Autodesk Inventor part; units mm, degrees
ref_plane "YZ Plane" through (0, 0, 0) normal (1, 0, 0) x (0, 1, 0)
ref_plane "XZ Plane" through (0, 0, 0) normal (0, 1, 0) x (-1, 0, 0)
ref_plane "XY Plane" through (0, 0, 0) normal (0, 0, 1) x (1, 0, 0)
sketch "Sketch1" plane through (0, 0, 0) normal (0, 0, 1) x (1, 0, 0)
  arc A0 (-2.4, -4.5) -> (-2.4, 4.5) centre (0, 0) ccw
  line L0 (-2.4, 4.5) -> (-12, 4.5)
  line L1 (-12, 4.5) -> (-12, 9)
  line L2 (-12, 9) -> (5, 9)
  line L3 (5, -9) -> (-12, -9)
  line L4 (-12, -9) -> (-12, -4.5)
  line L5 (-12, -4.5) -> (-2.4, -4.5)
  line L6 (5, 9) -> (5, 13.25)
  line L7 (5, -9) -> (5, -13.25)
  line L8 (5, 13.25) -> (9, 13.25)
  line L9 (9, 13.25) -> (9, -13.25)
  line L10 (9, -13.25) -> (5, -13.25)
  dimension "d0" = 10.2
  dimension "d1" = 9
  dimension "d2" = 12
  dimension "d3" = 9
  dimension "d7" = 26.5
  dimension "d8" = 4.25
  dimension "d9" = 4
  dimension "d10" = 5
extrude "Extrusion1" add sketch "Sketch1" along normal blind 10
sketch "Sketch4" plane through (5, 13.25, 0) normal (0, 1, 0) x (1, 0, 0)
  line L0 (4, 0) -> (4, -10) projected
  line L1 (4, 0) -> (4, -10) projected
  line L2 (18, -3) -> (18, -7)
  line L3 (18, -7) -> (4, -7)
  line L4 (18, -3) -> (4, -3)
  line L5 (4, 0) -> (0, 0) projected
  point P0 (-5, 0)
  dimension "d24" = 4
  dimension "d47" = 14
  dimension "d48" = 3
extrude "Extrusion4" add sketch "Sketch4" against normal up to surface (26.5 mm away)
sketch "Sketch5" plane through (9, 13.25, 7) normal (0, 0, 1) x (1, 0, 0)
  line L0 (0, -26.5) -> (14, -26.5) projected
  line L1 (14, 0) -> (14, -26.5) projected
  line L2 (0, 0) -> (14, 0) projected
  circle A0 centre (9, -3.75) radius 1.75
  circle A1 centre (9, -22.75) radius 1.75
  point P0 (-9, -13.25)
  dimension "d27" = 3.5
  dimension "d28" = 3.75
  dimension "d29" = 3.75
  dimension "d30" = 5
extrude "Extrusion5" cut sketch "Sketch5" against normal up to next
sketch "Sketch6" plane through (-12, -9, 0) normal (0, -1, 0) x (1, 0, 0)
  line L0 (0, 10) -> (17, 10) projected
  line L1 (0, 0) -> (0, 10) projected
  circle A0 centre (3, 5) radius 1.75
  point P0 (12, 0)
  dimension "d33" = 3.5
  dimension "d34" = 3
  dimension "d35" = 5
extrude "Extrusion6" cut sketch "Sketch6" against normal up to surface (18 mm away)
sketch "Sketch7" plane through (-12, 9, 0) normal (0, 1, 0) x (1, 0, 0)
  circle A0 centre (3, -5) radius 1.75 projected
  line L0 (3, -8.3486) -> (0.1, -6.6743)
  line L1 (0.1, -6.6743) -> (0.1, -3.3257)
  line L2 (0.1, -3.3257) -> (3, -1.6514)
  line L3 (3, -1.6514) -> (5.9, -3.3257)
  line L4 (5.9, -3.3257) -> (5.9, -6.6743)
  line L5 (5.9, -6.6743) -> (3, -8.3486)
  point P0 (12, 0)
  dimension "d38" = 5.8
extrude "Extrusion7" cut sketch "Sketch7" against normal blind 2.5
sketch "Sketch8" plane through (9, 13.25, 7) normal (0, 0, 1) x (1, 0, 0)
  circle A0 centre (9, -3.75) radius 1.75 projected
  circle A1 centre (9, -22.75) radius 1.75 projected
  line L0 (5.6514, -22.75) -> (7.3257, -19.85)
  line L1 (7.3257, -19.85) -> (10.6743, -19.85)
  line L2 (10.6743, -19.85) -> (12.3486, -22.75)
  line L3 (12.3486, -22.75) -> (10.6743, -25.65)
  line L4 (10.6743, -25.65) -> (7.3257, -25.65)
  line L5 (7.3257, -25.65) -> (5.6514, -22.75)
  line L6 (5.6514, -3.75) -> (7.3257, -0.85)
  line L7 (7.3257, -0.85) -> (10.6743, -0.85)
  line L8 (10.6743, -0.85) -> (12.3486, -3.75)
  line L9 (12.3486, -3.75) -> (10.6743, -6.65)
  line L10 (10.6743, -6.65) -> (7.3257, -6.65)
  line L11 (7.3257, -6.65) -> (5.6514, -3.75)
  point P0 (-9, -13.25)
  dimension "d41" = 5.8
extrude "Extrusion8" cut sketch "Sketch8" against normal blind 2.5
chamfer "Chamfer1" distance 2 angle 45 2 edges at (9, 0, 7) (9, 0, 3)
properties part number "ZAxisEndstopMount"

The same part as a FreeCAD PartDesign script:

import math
import FreeCAD as App
import Part
import Sketcher

V = App.Vector
Q = App.Units.Quantity


def edges_at(feature, points):
    """Names of the edges that pass closest to the given points."""
    edges = feature.Shape.Edges
    near = lambda p: min(range(len(edges)), key=lambda i: edges[i].distToShape(Part.Vertex(*p))[0])
    return sorted({f"Edge{near(p) + 1}" for p in points})

doc = App.newDocument("Part")
params = doc.addObject("Spreadsheet::Sheet", "Params")
for row, (alias, value) in enumerate([
    ("sketch1_radius", "5.1 mm"),
    ("sketch1_width", "4 mm"),
    ("sketch1_height", "26.5 mm"),
    ("pad1_length", "10 mm"),
    ("sketch2_width", "14 mm"),
    ("sketch2_height", "4 mm"),
    ("pad2_length", "26.5 mm"),
    ("sketch3_diameter", "3.5 mm"),
    ("sketch4_diameter", "3.5 mm"),
    ("pocket2_length", "18 mm"),
    ("sketch5_diameter", "3.5 mm"),
    ("pocket3_length", "2.5 mm"),
    ("sketch6_diameter", "3.5 mm"),
    ("pocket4_length", "2.5 mm"),
    ("chamfer_size", "2 mm"),
], start=1):
    params.set(f"A{row}", alias)
    params.set(f"B{row}", "=" + value)
    params.setAlias(f"B{row}", alias)

body = doc.addObject("PartDesign::Body", "Body")

sketch1 = body.newObject("Sketcher::SketchObject", "Sketch")
sketch1.AttachmentSupport = (doc.getObject("XY_Plane"), [""])
sketch1.MapMode = "FlatFace"
sketch1.addGeometry(Part.ArcOfCircle(Part.Circle(V(0, 0, 0), V(0, 0, 1), 5.1), math.radians(-118), math.radians(118)), False)
sketch1.addGeometry(Part.LineSegment(V(-2.4, -4.5, 0), V(-12, -4.5, 0)), False)
sketch1.addGeometry(Part.LineSegment(V(-12, -4.5, 0), V(-12, -9, 0)), False)
sketch1.addGeometry(Part.LineSegment(V(-12, -9, 0), V(5, -9, 0)), False)
sketch1.addGeometry(Part.LineSegment(V(5, -9, 0), V(5, -13.2, 0)), False)
sketch1.addGeometry(Part.LineSegment(V(5, -13.2, 0), V(9, -13.2, 0)), False)
sketch1.addGeometry(Part.LineSegment(V(9, -13.2, 0), V(9, 13.2, 0)), False)
sketch1.addGeometry(Part.LineSegment(V(9, 13.2, 0), V(5, 13.2, 0)), False)
sketch1.addGeometry(Part.LineSegment(V(5, 13.2, 0), V(5, 9, 0)), False)
sketch1.addGeometry(Part.LineSegment(V(5, 9, 0), V(-12, 9, 0)), False)
sketch1.addGeometry(Part.LineSegment(V(-12, 9, 0), V(-12, 4.5, 0)), False)
sketch1.addGeometry(Part.LineSegment(V(-12, 4.5, 0), V(-2.4, 4.5, 0)), False)
sketch1.addConstraint(Sketcher.Constraint("Coincident", 0, 1, 1, 1))
sketch1.addConstraint(Sketcher.Constraint("Coincident", 1, 2, 2, 1))
sketch1.addConstraint(Sketcher.Constraint("Coincident", 2, 2, 3, 1))
sketch1.addConstraint(Sketcher.Constraint("Coincident", 3, 2, 4, 1))
sketch1.addConstraint(Sketcher.Constraint("Coincident", 4, 2, 5, 1))
sketch1.addConstraint(Sketcher.Constraint("Coincident", 5, 2, 6, 1))
sketch1.addConstraint(Sketcher.Constraint("Coincident", 6, 2, 7, 1))
sketch1.addConstraint(Sketcher.Constraint("Coincident", 7, 2, 8, 1))
sketch1.addConstraint(Sketcher.Constraint("Coincident", 8, 2, 9, 1))
sketch1.addConstraint(Sketcher.Constraint("Coincident", 9, 2, 10, 1))
sketch1.addConstraint(Sketcher.Constraint("Coincident", 10, 2, 11, 1))
sketch1.addConstraint(Sketcher.Constraint("Coincident", 11, 2, 0, 2))
sketch1.addConstraint(Sketcher.Constraint("Horizontal", 1))
sketch1.addConstraint(Sketcher.Constraint("Vertical", 2))
sketch1.addConstraint(Sketcher.Constraint("Horizontal", 3))
sketch1.addConstraint(Sketcher.Constraint("Vertical", 4))
sketch1.addConstraint(Sketcher.Constraint("Horizontal", 5))
sketch1.addConstraint(Sketcher.Constraint("Vertical", 6))
sketch1.addConstraint(Sketcher.Constraint("Horizontal", 7))
sketch1.addConstraint(Sketcher.Constraint("Vertical", 8))
sketch1.addConstraint(Sketcher.Constraint("Horizontal", 9))
sketch1.addConstraint(Sketcher.Constraint("Vertical", 10))
sketch1.addConstraint(Sketcher.Constraint("Horizontal", 11))
sketch1.addConstraint(Sketcher.Constraint("Coincident", 0, 3, -1, 1))
sketch1.addConstraint(Sketcher.Constraint("Symmetric", 4, 2, 7, 2, -1))
sketch1.addConstraint(Sketcher.Constraint("Symmetric", 2, 2, 9, 2, -1))
sketch1.addConstraint(Sketcher.Constraint("Vertical", 0, 1, 11, 2))
sketch1.addConstraint(Sketcher.Constraint("Radius", 0, Q("5.1 mm")))
sketch1.addConstraint(Sketcher.Constraint("DistanceX", 5, 1, 5, 2, Q("4 mm")))
sketch1.addConstraint(Sketcher.Constraint("DistanceY", 6, 1, 6, 2, Q("26.5 mm")))
sketch1.addConstraint(Sketcher.Constraint("DistanceX", 1, 2, -1, 1, Q("12 mm")))
sketch1.addConstraint(Sketcher.Constraint("DistanceY", 2, 2, -1, 1, Q("9 mm")))
sketch1.addConstraint(Sketcher.Constraint("DistanceX", -1, 1, 3, 2, Q("5 mm")))
sketch1.addConstraint(Sketcher.Constraint("DistanceY", 1, 2, 10, 2, Q("9 mm")))
sketch1.setExpression("Constraints[27]", "Params.sketch1_radius")
sketch1.setExpression("Constraints[28]", "Params.sketch1_width")
sketch1.setExpression("Constraints[29]", "Params.sketch1_height")
pad1 = body.newObject("PartDesign::Pad", "Pad")
pad1.Profile = sketch1
pad1.setExpression("Length", "Params.pad1_length")

sketch2 = body.newObject("Sketcher::SketchObject", "Sketch001")
sketch2.AttachmentSupport = (doc.getObject("XZ_Plane"), [""])
sketch2.MapMode = "FlatFace"
sketch2.AttachmentOffset = App.Placement(V(0, 0, -13.25), App.Rotation())
sketch2.addGeometry(Part.LineSegment(V(23, 3, 0), V(9, 3, 0)), False)
sketch2.addGeometry(Part.LineSegment(V(9, 3, 0), V(9, 7, 0)), False)
sketch2.addGeometry(Part.LineSegment(V(9, 7, 0), V(23, 7, 0)), False)
sketch2.addGeometry(Part.LineSegment(V(23, 7, 0), V(23, 3, 0)), False)
sketch2.addConstraint(Sketcher.Constraint("Coincident", 0, 2, 1, 1))
sketch2.addConstraint(Sketcher.Constraint("Coincident", 1, 2, 2, 1))
sketch2.addConstraint(Sketcher.Constraint("Coincident", 2, 2, 3, 1))
sketch2.addConstraint(Sketcher.Constraint("Coincident", 3, 2, 0, 1))
sketch2.addConstraint(Sketcher.Constraint("Horizontal", 0))
sketch2.addConstraint(Sketcher.Constraint("Vertical", 1))
sketch2.addConstraint(Sketcher.Constraint("Horizontal", 2))
sketch2.addConstraint(Sketcher.Constraint("Vertical", 3))
sketch2.addConstraint(Sketcher.Constraint("DistanceX", 0, 2, 0, 1, Q("14 mm")))
sketch2.addConstraint(Sketcher.Constraint("DistanceY", 1, 1, 1, 2, Q("4 mm")))
sketch2.addConstraint(Sketcher.Constraint("DistanceY", -1, 1, 0, 2, Q("3 mm")))
sketch2.addConstraint(Sketcher.Constraint("DistanceX", -1, 1, 0, 2, Q("9 mm")))
sketch2.setExpression("Constraints[8]", "Params.sketch2_width")
sketch2.setExpression("Constraints[9]", "Params.sketch2_height")
pad2 = body.newObject("PartDesign::Pad", "Pad001")
pad2.Profile = sketch2
pad2.setExpression("Length", "Params.pad2_length")

sketch3 = body.newObject("Sketcher::SketchObject", "Sketch002")
sketch3.AttachmentSupport = (doc.getObject("XY_Plane"), [""])
sketch3.MapMode = "FlatFace"
sketch3.AttachmentOffset = App.Placement(V(0, 0, 7), App.Rotation())
sketch3.addGeometry(Part.Circle(V(18, 9.5, 0), V(0, 0, 1), 1.8), False)
sketch3.addGeometry(Part.Circle(V(18, -9.5, 0), V(0, 0, 1), 1.8), False)
sketch3.addConstraint(Sketcher.Constraint("Equal", 0, 1))
sketch3.addConstraint(Sketcher.Constraint("Symmetric", 0, 3, 1, 3, -1))
sketch3.addConstraint(Sketcher.Constraint("Diameter", 0, Q("3.5 mm")))
sketch3.addConstraint(Sketcher.Constraint("DistanceX", -1, 1, 0, 3, Q("18 mm")))
sketch3.addConstraint(Sketcher.Constraint("DistanceY", 1, 3, 0, 3, Q("19 mm")))
sketch3.setExpression("Constraints[2]", "Params.sketch3_diameter")
pocket1 = body.newObject("PartDesign::Pocket", "Pocket")
pocket1.Profile = sketch3
pocket1.Type = "UpToFirst"

sketch4 = body.newObject("Sketcher::SketchObject", "Sketch003")
sketch4.AttachmentSupport = (doc.getObject("XZ_Plane"), [""])
sketch4.MapMode = "FlatFace"
sketch4.AttachmentOffset = App.Placement(V(0, 0, 9), App.Rotation())
sketch4.addGeometry(Part.Circle(V(-9, 5, 0), V(0, 0, 1), 1.8), False)
sketch4.addConstraint(Sketcher.Constraint("Diameter", 0, Q("3.5 mm")))
sketch4.addConstraint(Sketcher.Constraint("DistanceY", -1, 1, 0, 3, Q("5 mm")))
sketch4.addConstraint(Sketcher.Constraint("DistanceX", 0, 3, -1, 1, Q("9 mm")))
sketch4.setExpression("Constraints[0]", "Params.sketch4_diameter")
pocket2 = body.newObject("PartDesign::Pocket", "Pocket001")
pocket2.Profile = sketch4
pocket2.setExpression("Length", "Params.pocket2_length")

sketch5 = body.newObject("Sketcher::SketchObject", "Sketch004")
sketch5.AttachmentSupport = (doc.getObject("XZ_Plane"), [""])
sketch5.MapMode = "FlatFace"
sketch5.AttachmentOffset = App.Placement(V(0, 0, -9), App.Rotation())
sketch5.addGeometry(Part.LineSegment(V(-11.9, 6.7, 0), V(-9, 8.3, 0)), False)
sketch5.addGeometry(Part.LineSegment(V(-9, 8.3, 0), V(-6.1, 6.7, 0)), False)
sketch5.addGeometry(Part.LineSegment(V(-6.1, 6.7, 0), V(-6.1, 3.3, 0)), False)
sketch5.addGeometry(Part.LineSegment(V(-6.1, 3.3, 0), V(-9, 1.7, 0)), False)
sketch5.addGeometry(Part.LineSegment(V(-9, 1.7, 0), V(-11.9, 3.3, 0)), False)
sketch5.addGeometry(Part.LineSegment(V(-11.9, 3.3, 0), V(-11.9, 6.7, 0)), False)
sketch5.addGeometry(Part.Circle(V(-9, 5, 0), V(0, 0, 1), 1.8), False)
sketch5.addConstraint(Sketcher.Constraint("Coincident", 0, 2, 1, 1))
sketch5.addConstraint(Sketcher.Constraint("Coincident", 1, 2, 2, 1))
sketch5.addConstraint(Sketcher.Constraint("Coincident", 2, 2, 3, 1))
sketch5.addConstraint(Sketcher.Constraint("Coincident", 3, 2, 4, 1))
sketch5.addConstraint(Sketcher.Constraint("Coincident", 4, 2, 5, 1))
sketch5.addConstraint(Sketcher.Constraint("Coincident", 5, 2, 0, 1))
sketch5.addConstraint(Sketcher.Constraint("Vertical", 2))
sketch5.addConstraint(Sketcher.Constraint("Vertical", 5))
sketch5.addConstraint(Sketcher.Constraint("Parallel", 0, 3))
sketch5.addConstraint(Sketcher.Constraint("Parallel", 1, 4))
sketch5.addConstraint(Sketcher.Constraint("Horizontal", 2, 2, 4, 2))
sketch5.addConstraint(Sketcher.Constraint("Horizontal", 1, 2, 5, 2))
sketch5.addConstraint(Sketcher.Constraint("Vertical", 6, 3, 0, 2))
sketch5.addConstraint(Sketcher.Constraint("Vertical", 0, 2, 3, 2))
sketch5.addConstraint(Sketcher.Constraint("Diameter", 6, Q("3.5 mm")))
sketch5.addConstraint(Sketcher.Constraint("DistanceX", 4, 2, 2, 2, Q("5.8 mm")))
sketch5.addConstraint(Sketcher.Constraint("Angle", 0, Q("29.9998 deg")))
sketch5.addConstraint(Sketcher.Constraint("DistanceX", 6, 3, -1, 1, Q("9 mm")))
sketch5.addConstraint(Sketcher.Constraint("DistanceY", -1, 1, 6, 3, Q("5 mm")))
sketch5.addConstraint(Sketcher.Constraint("DistanceY", 2, 2, 2, 1, Q("3.3486 mm")))
sketch5.addConstraint(Sketcher.Constraint("DistanceY", -1, 1, 0, 2, Q("8.3486 mm")))
sketch5.setExpression("Constraints[14]", "Params.sketch5_diameter")
pocket3 = body.newObject("PartDesign::Pocket", "Pocket002")
pocket3.Profile = sketch5
pocket3.setExpression("Length", "Params.pocket3_length")
pocket3.Reversed = True

sketch6 = body.newObject("Sketcher::SketchObject", "Sketch005")
sketch6.AttachmentSupport = (doc.getObject("XY_Plane"), [""])
sketch6.MapMode = "FlatFace"
sketch6.AttachmentOffset = App.Placement(V(0, 0, 7), App.Rotation())
sketch6.addGeometry(Part.LineSegment(V(16.3, -6.6, 0), V(14.7, -9.5, 0)), False)
sketch6.addGeometry(Part.LineSegment(V(14.7, -9.5, 0), V(16.3, -12.4, 0)), False)
sketch6.addGeometry(Part.LineSegment(V(16.3, -12.4, 0), V(19.7, -12.4, 0)), False)
sketch6.addGeometry(Part.LineSegment(V(19.7, -12.4, 0), V(21.3, -9.5, 0)), False)
sketch6.addGeometry(Part.LineSegment(V(21.3, -9.5, 0), V(19.7, -6.6, 0)), False)
sketch6.addGeometry(Part.LineSegment(V(19.7, -6.6, 0), V(16.3, -6.6, 0)), False)
sketch6.addGeometry(Part.Circle(V(18, -9.5, 0), V(0, 0, 1), 1.8), False)
sketch6.addGeometry(Part.LineSegment(V(16.3, 12.4, 0), V(14.7, 9.5, 0)), False)
sketch6.addGeometry(Part.LineSegment(V(14.7, 9.5, 0), V(16.3, 6.6, 0)), False)
sketch6.addGeometry(Part.LineSegment(V(16.3, 6.6, 0), V(19.7, 6.6, 0)), False)
sketch6.addGeometry(Part.LineSegment(V(19.7, 6.6, 0), V(21.3, 9.5, 0)), False)
sketch6.addGeometry(Part.LineSegment(V(21.3, 9.5, 0), V(19.7, 12.4, 0)), False)
sketch6.addGeometry(Part.LineSegment(V(19.7, 12.4, 0), V(16.3, 12.4, 0)), False)
sketch6.addGeometry(Part.Circle(V(18, 9.5, 0), V(0, 0, 1), 1.8), False)
sketch6.addConstraint(Sketcher.Constraint("Coincident", 0, 2, 1, 1))
sketch6.addConstraint(Sketcher.Constraint("Coincident", 1, 2, 2, 1))
sketch6.addConstraint(Sketcher.Constraint("Coincident", 2, 2, 3, 1))
sketch6.addConstraint(Sketcher.Constraint("Coincident", 3, 2, 4, 1))
sketch6.addConstraint(Sketcher.Constraint("Coincident", 4, 2, 5, 1))
sketch6.addConstraint(Sketcher.Constraint("Coincident", 5, 2, 0, 1))
sketch6.addConstraint(Sketcher.Constraint("Coincident", 7, 2, 8, 1))
sketch6.addConstraint(Sketcher.Constraint("Coincident", 8, 2, 9, 1))
sketch6.addConstraint(Sketcher.Constraint("Coincident", 9, 2, 10, 1))
sketch6.addConstraint(Sketcher.Constraint("Coincident", 10, 2, 11, 1))
sketch6.addConstraint(Sketcher.Constraint("Coincident", 11, 2, 12, 1))
sketch6.addConstraint(Sketcher.Constraint("Coincident", 12, 2, 7, 1))
sketch6.addConstraint(Sketcher.Constraint("Horizontal", 2))
sketch6.addConstraint(Sketcher.Constraint("Horizontal", 5))
sketch6.addConstraint(Sketcher.Constraint("Horizontal", 9))
sketch6.addConstraint(Sketcher.Constraint("Horizontal", 12))
sketch6.addConstraint(Sketcher.Constraint("Equal", 6, 13))
sketch6.addConstraint(Sketcher.Constraint("Symmetric", 6, 3, 13, 3, -1))
sketch6.addConstraint(Sketcher.Constraint("Symmetric", 0, 2, 7, 2, -1))
sketch6.addConstraint(Sketcher.Constraint("Symmetric", 5, 2, 8, 2, -1))
sketch6.addConstraint(Sketcher.Constraint("Symmetric", 3, 2, 10, 2, -1))
sketch6.addConstraint(Sketcher.Constraint("Symmetric", 2, 2, 11, 2, -1))
sketch6.addConstraint(Sketcher.Constraint("Parallel", 0, 3))
sketch6.addConstraint(Sketcher.Constraint("Parallel", 1, 4))
sketch6.addConstraint(Sketcher.Constraint("Parallel", 3, 7))
sketch6.addConstraint(Sketcher.Constraint("Parallel", 4, 8))
sketch6.addConstraint(Sketcher.Constraint("Parallel", 7, 10))
sketch6.addConstraint(Sketcher.Constraint("Horizontal", 6, 3, 0, 2))
sketch6.addConstraint(Sketcher.Constraint("Horizontal", 0, 2, 3, 2))
sketch6.addConstraint(Sketcher.Constraint("Vertical", 2, 2, 4, 2))
sketch6.addConstraint(Sketcher.Constraint("Diameter", 6, Q("3.5 mm")))
sketch6.addConstraint(Sketcher.Constraint("DistanceY", 2, 2, 4, 2, Q("5.8 mm")))
sketch6.addConstraint(Sketcher.Constraint("Angle", 0, Q("-119.9998 deg")))
sketch6.addConstraint(Sketcher.Constraint("DistanceX", -1, 1, 6, 3, Q("18 mm")))
sketch6.addConstraint(Sketcher.Constraint("DistanceY", 6, 3, 13, 3, Q("19 mm")))
sketch6.addConstraint(Sketcher.Constraint("DistanceX", 2, 1, 2, 2, Q("3.3486 mm")))
sketch6.addConstraint(Sketcher.Constraint("DistanceX", -1, 1, 0, 2, Q("14.6514 mm")))
sketch6.setExpression("Constraints[30]", "Params.sketch6_diameter")
pocket4 = body.newObject("PartDesign::Pocket", "Pocket003")
pocket4.Profile = sketch6
pocket4.setExpression("Length", "Params.pocket4_length")
doc.recompute()

chamfer = body.newObject("PartDesign::Chamfer", "Chamfer")
chamfer.Base = (pocket4, edges_at(pocket4, [(9, 0, 7), (9, 0, 3)]))
chamfer.setExpression("Size", "Params.chamfer_size")

doc.recompute()
